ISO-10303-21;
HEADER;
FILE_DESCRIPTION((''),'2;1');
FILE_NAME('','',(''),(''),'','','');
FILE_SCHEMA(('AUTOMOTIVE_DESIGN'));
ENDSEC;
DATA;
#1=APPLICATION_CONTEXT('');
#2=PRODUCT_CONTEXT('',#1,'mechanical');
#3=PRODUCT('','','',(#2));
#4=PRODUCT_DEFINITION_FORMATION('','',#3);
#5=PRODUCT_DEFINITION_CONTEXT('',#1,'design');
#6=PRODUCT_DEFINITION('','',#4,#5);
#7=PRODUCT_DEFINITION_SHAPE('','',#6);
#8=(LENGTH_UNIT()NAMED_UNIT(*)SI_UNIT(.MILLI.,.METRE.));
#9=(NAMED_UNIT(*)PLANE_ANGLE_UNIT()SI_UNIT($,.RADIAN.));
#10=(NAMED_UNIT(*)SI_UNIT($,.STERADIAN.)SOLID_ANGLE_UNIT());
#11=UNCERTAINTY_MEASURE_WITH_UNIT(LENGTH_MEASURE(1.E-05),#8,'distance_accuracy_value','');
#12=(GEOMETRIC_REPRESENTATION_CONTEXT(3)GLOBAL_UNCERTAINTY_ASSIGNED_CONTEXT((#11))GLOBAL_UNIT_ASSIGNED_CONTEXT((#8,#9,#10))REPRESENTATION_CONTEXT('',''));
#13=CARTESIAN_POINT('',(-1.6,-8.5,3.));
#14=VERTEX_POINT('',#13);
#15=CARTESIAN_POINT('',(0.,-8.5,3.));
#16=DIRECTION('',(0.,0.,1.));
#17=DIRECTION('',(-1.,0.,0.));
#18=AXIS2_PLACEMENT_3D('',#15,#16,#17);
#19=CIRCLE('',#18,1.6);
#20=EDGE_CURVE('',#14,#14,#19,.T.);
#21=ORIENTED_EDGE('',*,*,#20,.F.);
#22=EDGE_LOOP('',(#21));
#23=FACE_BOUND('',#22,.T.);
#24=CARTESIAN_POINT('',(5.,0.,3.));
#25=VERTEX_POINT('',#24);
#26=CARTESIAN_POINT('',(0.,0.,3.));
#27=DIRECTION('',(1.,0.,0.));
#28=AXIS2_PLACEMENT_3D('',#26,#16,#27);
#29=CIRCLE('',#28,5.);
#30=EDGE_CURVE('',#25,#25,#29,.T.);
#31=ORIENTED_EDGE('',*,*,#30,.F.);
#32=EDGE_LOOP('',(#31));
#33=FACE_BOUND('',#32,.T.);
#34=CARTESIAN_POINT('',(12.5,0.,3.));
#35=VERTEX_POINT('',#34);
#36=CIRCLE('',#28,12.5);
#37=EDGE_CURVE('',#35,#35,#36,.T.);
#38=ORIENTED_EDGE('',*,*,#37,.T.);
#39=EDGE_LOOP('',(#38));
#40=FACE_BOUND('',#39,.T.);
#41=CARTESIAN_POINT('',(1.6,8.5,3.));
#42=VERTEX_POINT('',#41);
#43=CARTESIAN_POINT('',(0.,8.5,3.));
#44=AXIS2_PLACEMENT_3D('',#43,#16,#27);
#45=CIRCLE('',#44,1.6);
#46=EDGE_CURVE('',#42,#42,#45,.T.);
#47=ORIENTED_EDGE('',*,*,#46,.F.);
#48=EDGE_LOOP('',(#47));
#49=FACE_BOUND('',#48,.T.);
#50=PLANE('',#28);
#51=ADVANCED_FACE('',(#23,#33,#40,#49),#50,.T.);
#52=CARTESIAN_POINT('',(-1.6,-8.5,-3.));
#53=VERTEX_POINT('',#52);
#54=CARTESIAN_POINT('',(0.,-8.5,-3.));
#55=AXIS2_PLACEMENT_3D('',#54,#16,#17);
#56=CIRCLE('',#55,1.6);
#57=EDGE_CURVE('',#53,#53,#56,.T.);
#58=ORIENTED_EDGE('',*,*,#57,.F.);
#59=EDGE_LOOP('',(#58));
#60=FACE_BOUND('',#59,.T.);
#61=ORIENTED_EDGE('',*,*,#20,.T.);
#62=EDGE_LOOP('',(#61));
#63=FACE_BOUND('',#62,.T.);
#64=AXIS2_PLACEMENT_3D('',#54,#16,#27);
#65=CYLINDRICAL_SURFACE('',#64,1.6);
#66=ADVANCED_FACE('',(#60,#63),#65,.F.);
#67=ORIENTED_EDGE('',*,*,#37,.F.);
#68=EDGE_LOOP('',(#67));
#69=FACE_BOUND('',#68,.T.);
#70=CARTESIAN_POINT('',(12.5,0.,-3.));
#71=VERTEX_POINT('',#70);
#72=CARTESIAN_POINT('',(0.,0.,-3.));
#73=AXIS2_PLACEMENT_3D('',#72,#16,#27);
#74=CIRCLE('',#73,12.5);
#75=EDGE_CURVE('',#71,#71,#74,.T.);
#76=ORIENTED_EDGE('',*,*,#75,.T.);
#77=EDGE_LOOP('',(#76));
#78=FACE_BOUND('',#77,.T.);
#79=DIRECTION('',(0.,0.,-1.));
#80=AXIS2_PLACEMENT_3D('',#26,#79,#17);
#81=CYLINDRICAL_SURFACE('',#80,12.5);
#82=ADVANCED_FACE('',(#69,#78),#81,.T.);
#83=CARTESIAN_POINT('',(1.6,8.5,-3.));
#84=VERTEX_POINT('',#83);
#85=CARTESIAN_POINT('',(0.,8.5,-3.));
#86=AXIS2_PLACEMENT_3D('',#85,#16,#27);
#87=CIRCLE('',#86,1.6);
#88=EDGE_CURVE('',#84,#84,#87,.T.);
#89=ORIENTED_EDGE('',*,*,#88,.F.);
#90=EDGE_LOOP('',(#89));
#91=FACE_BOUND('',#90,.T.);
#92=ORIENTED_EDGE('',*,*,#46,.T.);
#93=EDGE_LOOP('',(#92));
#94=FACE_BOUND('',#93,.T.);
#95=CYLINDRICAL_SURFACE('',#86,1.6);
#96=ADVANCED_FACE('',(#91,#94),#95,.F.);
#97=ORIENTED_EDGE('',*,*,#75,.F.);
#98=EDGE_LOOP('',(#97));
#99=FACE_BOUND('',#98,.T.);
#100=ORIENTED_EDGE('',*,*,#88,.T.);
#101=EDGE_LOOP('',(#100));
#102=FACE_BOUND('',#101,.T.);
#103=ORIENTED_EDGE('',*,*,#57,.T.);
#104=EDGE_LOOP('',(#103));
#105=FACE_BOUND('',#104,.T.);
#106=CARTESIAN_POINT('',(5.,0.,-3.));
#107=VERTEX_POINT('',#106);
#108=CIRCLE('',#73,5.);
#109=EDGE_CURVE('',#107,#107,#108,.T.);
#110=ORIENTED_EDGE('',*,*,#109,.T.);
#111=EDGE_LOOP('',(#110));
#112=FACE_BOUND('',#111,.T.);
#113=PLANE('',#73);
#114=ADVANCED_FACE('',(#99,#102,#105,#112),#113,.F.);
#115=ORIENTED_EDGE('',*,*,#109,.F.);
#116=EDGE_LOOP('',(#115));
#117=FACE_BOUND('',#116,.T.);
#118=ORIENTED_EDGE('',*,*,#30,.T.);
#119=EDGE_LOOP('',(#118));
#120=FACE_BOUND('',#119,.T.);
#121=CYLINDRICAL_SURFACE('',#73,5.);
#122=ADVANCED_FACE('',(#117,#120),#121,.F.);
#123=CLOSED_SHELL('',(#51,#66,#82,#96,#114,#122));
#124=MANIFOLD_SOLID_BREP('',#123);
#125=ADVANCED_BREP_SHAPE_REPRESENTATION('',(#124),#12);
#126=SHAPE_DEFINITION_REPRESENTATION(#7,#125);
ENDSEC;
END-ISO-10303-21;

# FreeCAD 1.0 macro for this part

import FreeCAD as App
import Part
import Sketcher

V = App.Vector
Q = App.Units.Quantity

doc = App.newDocument("Part")
params = doc.addObject("Spreadsheet::Sheet", "Params")
for row, (alias, value) in enumerate([
    ("sketch1_diameter", "25 mm"),
    ("pad1_length", "6 mm"),
    ("sketch2_diameter", "10 mm"),
    ("sketch3_diameter", "3.2 mm"),
    ("pocket2_length", "39.336309 mm"),
], start=1):
    params.set(f"A{row}", alias)
    params.set(f"B{row}", "=" + value)
    params.setAlias(f"B{row}", alias)

body = doc.addObject("PartDesign::Body", "Body")

sketch1 = doc.addObject("Sketcher::SketchObject", "Sketch")
body.addObject(sketch1)
sketch1.AttachmentSupport = (doc.XY_Plane, [""])
sketch1.MapMode = "FlatFace"
sketch1.addGeometry(Part.Circle(V(0, 0, 0), V(0, 0, 1), 12.5), False)
sketch1.addConstraint(Sketcher.Constraint("Coincident", 0, 3, -1, 1))
sketch1.addConstraint(Sketcher.Constraint("Diameter", 0, Q("25 mm")))
sketch1.setExpression("Constraints[1]", "Params.sketch1_diameter")
pad1 = doc.addObject("PartDesign::Pad", "Pad")
body.addObject(pad1)
pad1.Profile = sketch1
pad1.setExpression("Length", "Params.pad1_length")
pad1.Midplane = True

sketch2 = doc.addObject("Sketcher::SketchObject", "Sketch001")
body.addObject(sketch2)
sketch2.AttachmentSupport = (doc.XY_Plane, [""])
sketch2.MapMode = "FlatFace"
sketch2.addGeometry(Part.Circle(V(0, 0, 0), V(0, 0, 1), 5), False)
sketch2.addConstraint(Sketcher.Constraint("Coincident", 0, 3, -1, 1))
sketch2.addConstraint(Sketcher.Constraint("Diameter", 0, Q("10 mm")))
sketch2.setExpression("Constraints[1]", "Params.sketch2_diameter")
pocket1 = doc.addObject("PartDesign::Pocket", "Pocket")
body.addObject(pocket1)
pocket1.Profile = sketch2
pocket1.Type = "ThroughAll"
pocket1.Midplane = True

sketch3 = doc.addObject("Sketcher::SketchObject", "Sketch002")
body.addObject(sketch3)
sketch3.AttachmentSupport = (doc.XY_Plane, [""])
sketch3.MapMode = "FlatFace"
sketch3.AttachmentOffset = App.Placement(V(0, 0, 3), App.Rotation())
sketch3.addGeometry(Part.Circle(V(0, 8.5, 0), V(0, 0, 1), 1.6), False)
sketch3.addConstraint(Sketcher.Constraint("PointOnObject", 0, 3, -2))
sketch3.addConstraint(Sketcher.Constraint("Diameter", 0, Q("3.2 mm")))
sketch3.addConstraint(Sketcher.Constraint("DistanceY", -1, 1, 0, 3, Q("8.5 mm")))
sketch3.setExpression("Constraints[1]", "Params.sketch3_diameter")
pocket2 = doc.addObject("PartDesign::Pocket", "Pocket001")
body.addObject(pocket2)
pocket2.Profile = sketch3
pocket2.setExpression("Length", "Params.pocket2_length")
pocket2.Midplane = True
doc.recompute()

polarpattern = doc.addObject("PartDesign::PolarPattern", "PolarPattern")
body.addObject(polarpattern)
polarpattern.Originals = [pocket2]
polarpattern.Axis = (doc.Z_Axis, [""])
polarpattern.Angle = 360
polarpattern.Occurrences = 2
body.Tip = polarpattern

doc.recompute()
